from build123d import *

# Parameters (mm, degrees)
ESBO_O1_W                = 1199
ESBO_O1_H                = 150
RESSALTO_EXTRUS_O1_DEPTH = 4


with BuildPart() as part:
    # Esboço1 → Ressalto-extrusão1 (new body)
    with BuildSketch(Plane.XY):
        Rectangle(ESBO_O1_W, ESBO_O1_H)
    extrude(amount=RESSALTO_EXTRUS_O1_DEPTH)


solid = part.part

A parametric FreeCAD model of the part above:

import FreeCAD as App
import Part
import Sketcher
from FreeCAD import Vector
Q = App.Units.Quantity


def add_polygon(sketch, points):
    """Adds a closed chain of lines whose ends are joined by coincident constraints."""
    first, n = sketch.GeometryCount, len(points)
    for a, b in zip(points, points[1:] + points[:1]):
        sketch.addGeometry(Part.LineSegment(App.Vector(*a, 0), App.Vector(*b, 0)), False)
    for i in range(n):
        sketch.addConstraint(Sketcher.Constraint("Coincident", first + i, 2, first + (i + 1) % n, 1))

doc = App.newDocument("Part")
body = doc.addObject("PartDesign::Body", "Body")

# Sketch on XY plane
sketch1 = body.newObject("Sketcher::SketchObject", "Sketch")
sketch1.AttachmentSupport = (doc.getObject("XY_Plane"), [""])
sketch1.MapMode = "FlatFace"
add_polygon(sketch1, [(-599.5, 75), (-599.5, -75), (599.5, -75), (599.5, 75)])  # lines 0-3
sketch1.addConstraint(Sketcher.Constraint("Vertical", 0))
sketch1.addConstraint(Sketcher.Constraint("Horizontal", 1))
sketch1.addConstraint(Sketcher.Constraint("Vertical", 2))
sketch1.addConstraint(Sketcher.Constraint("Horizontal", 3))
sketch1.addConstraint(Sketcher.Constraint("Symmetric", 0, 2, 2, 2, -1, 1))
sketch1.addConstraint(Sketcher.Constraint("DistanceX", 1, 1, 1, 2, Q("1199 mm")))
sketch1.addConstraint(Sketcher.Constraint("DistanceY", 0, 2, 0, 1, Q("150 mm")))
pad1 = body.newObject("PartDesign::Pad", "Pad")
pad1.Profile = sketch1
pad1.Length = 4

doc.recompute()
